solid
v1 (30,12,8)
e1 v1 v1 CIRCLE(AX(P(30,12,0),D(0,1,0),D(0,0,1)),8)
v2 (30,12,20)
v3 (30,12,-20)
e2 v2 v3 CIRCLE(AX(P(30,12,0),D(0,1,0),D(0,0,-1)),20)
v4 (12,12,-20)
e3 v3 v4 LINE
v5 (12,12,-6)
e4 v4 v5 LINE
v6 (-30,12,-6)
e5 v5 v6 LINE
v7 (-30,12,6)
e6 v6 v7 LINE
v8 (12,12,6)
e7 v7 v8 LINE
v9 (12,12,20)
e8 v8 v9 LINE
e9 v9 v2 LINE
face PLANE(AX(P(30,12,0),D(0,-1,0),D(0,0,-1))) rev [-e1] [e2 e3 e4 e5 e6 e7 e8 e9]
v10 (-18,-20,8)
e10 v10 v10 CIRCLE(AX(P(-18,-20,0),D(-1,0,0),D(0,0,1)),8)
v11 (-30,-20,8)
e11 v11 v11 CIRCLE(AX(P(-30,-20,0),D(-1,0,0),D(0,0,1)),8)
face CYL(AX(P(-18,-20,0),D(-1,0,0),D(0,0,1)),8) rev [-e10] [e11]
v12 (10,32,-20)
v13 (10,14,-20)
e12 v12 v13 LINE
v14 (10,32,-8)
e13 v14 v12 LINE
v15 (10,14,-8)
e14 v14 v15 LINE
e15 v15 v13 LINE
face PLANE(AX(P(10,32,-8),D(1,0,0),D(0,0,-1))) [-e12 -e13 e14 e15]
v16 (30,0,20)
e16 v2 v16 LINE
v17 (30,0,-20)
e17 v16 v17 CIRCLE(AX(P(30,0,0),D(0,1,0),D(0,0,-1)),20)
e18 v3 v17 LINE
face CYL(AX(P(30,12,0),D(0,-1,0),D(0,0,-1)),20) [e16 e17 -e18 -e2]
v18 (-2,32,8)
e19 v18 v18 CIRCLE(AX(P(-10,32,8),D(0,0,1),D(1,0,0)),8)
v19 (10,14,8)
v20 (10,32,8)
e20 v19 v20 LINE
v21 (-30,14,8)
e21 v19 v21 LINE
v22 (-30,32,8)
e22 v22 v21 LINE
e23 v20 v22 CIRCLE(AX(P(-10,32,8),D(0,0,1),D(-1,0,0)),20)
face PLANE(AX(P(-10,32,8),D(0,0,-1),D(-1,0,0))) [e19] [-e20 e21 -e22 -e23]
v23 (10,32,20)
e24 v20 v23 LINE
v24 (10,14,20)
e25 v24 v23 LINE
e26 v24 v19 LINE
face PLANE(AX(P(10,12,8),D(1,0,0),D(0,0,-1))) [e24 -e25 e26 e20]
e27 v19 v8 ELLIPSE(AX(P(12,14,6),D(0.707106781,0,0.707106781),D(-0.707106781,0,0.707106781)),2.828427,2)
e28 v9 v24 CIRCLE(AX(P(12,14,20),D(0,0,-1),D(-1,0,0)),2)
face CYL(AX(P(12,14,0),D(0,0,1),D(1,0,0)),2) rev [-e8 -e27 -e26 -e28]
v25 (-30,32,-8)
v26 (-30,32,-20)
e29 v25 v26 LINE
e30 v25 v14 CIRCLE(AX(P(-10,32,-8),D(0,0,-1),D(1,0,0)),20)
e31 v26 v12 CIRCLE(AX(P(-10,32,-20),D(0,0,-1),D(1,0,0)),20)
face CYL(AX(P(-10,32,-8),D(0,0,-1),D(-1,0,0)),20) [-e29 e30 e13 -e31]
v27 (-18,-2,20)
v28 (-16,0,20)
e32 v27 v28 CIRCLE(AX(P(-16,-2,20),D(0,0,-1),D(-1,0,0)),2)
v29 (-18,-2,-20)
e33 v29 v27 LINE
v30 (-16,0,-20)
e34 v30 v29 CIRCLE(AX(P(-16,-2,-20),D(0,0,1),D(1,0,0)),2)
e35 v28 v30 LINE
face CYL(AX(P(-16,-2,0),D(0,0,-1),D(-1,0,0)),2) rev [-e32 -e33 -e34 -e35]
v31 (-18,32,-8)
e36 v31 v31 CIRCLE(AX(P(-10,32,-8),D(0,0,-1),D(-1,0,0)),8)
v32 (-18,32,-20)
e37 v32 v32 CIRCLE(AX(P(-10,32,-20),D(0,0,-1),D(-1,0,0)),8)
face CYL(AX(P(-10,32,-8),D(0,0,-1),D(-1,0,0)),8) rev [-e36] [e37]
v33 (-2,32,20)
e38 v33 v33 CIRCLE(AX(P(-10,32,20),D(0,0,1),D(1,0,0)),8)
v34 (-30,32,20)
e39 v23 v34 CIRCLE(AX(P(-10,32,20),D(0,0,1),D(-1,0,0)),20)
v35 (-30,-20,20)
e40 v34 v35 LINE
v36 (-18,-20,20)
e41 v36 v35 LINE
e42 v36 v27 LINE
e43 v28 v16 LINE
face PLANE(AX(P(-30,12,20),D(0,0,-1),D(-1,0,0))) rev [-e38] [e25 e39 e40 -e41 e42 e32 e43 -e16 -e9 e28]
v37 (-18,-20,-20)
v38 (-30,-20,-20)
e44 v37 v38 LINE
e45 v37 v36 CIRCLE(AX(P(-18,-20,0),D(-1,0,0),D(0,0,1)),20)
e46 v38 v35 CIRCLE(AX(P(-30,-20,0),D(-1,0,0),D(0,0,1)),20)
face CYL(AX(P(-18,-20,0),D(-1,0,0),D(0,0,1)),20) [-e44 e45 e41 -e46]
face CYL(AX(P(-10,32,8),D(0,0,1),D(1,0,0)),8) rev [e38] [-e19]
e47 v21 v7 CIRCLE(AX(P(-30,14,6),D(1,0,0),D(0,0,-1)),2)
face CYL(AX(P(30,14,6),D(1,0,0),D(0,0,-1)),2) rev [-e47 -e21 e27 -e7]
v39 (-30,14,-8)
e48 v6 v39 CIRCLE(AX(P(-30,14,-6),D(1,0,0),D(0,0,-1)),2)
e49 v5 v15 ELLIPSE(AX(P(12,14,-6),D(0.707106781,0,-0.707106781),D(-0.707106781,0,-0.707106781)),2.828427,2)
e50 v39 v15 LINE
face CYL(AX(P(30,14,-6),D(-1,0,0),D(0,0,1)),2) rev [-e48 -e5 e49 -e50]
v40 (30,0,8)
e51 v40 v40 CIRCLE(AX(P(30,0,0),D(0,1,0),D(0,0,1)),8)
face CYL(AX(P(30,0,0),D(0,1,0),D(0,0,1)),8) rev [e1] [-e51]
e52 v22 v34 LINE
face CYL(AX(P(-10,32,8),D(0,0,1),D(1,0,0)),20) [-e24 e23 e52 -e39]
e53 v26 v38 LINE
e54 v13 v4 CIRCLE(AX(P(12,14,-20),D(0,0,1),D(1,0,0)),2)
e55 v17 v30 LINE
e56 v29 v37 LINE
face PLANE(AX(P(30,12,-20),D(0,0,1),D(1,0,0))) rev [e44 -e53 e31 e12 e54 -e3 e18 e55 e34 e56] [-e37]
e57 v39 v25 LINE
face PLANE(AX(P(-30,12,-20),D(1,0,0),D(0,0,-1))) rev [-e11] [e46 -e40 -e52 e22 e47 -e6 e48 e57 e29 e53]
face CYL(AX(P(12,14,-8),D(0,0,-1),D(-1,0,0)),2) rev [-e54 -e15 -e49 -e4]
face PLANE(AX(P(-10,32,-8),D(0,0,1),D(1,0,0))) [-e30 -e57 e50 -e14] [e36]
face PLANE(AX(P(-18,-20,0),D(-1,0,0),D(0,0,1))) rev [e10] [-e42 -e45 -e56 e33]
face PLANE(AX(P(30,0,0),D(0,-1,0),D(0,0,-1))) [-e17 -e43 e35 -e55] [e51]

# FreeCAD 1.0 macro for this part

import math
import FreeCAD as App
import Part
import Sketcher
Q = App.Units.Quantity


def edges_at(feature, points):
    """Names of the edges that pass closest to the given points."""
    edges = feature.Shape.Edges
    near = lambda p: min(range(len(edges)), key=lambda i: edges[i].distToShape(Part.Vertex(*p))[0])
    return sorted({f"Edge{near(p) + 1}" for p in points})

doc = App.newDocument("Part")
body = doc.addObject("PartDesign::Body", "Body")

# Sketch on XZ plane
sketch1 = doc.addObject("Sketcher::SketchObject", "Sketch")
body.addObject(sketch1)
sketch1.AttachmentSupport = (doc.XZ_Plane, [""])
sketch1.MapMode = "FlatFace"
sketch1.addGeometry(Part.LineSegment(App.Vector(-30, -20, 0), App.Vector(-30, 20, 0)), False)
sketch1.addGeometry(Part.LineSegment(App.Vector(-30, 20, 0), App.Vector(30, 20, 0)), False)
sketch1.addGeometry(Part.ArcOfCircle(Part.Circle(App.Vector(30, 0, 0), App.Vector(0, 0, 1), 20), math.radians(-90), math.radians(90)), False)
sketch1.addGeometry(Part.LineSegment(App.Vector(30, -20, 0), App.Vector(-30, -20, 0)), False)
sketch1.addConstraint(Sketcher.Constraint("Coincident", 0, 2, 1, 1))
sketch1.addConstraint(Sketcher.Constraint("Tangent", 1, 2, 2, 2))
sketch1.addConstraint(Sketcher.Constraint("Tangent", 2, 1, 3, 1))
sketch1.addConstraint(Sketcher.Constraint("Coincident", 3, 2, 0, 1))
sketch1.addConstraint(Sketcher.Constraint("Vertical", 0))
sketch1.addConstraint(Sketcher.Constraint("Horizontal", 1))
sketch1.addConstraint(Sketcher.Constraint("Horizontal", 3))
sketch1.addConstraint(Sketcher.Constraint("Symmetric", 0, 2, 2, 1, -1, 1))
sketch1.addConstraint(Sketcher.Constraint("Radius", 2, Q("20 mm")))
sketch1.addConstraint(Sketcher.Constraint("DistanceX", 1, 1, 1, 2, Q("60 mm")))
pad1 = doc.addObject("PartDesign::Pad", "Pad")
body.addObject(pad1)
pad1.Profile = sketch1
pad1.Length = 12
pad1.Reversed = True

# Sketch on XZ plane
sketch2 = doc.addObject("Sketcher::SketchObject", "Sketch001")
body.addObject(sketch2)
sketch2.AttachmentSupport = (doc.XZ_Plane, [""])
sketch2.MapMode = "FlatFace"
sketch2.AttachmentOffset = App.Placement(App.Vector(0, 0, -12), App.Rotation())
sketch2.addGeometry(Part.Circle(App.Vector(30, 0, 0), App.Vector(0, 0, 1), 8), False)
sketch2.addConstraint(Sketcher.Constraint("PointOnObject", 0, 3, -1))
sketch2.addConstraint(Sketcher.Constraint("Diameter", 0, Q("16 mm")))
sketch2.addConstraint(Sketcher.Constraint("DistanceX", -1, 1, 0, 3, Q("30 mm")))
pocket1 = doc.addObject("PartDesign::Pocket", "Pocket")
body.addObject(pocket1)
pocket1.Profile = sketch2
pocket1.Type = "ThroughAll"
pocket1.Reversed = True

# Sketch on XY plane
sketch3 = doc.addObject("Sketcher::SketchObject", "Sketch002")
body.addObject(sketch3)
sketch3.AttachmentSupport = (doc.XY_Plane, [""])
sketch3.MapMode = "FlatFace"
sketch3.AttachmentOffset = App.Placement(App.Vector(0, 0, 20), App.Rotation())
sketch3.addGeometry(Part.LineSegment(App.Vector(-30, 32, 0), App.Vector(-30, 12, 0)), False)
sketch3.addGeometry(Part.LineSegment(App.Vector(-30, 12, 0), App.Vector(10, 12, 0)), False)
sketch3.addGeometry(Part.LineSegment(App.Vector(10, 12, 0), App.Vector(10, 32, 0)), False)
sketch3.addGeometry(Part.ArcOfCircle(Part.Circle(App.Vector(-10, 32, 0), App.Vector(0, 0, 1), 20), math.radians(0), math.radians(180)), False)
sketch3.addGeometry(Part.Circle(App.Vector(-10, 32, 0), App.Vector(0, 0, 1), 8), False)
sketch3.addConstraint(Sketcher.Constraint("Coincident", 0, 2, 1, 1))
sketch3.addConstraint(Sketcher.Constraint("Coincident", 1, 2, 2, 1))
sketch3.addConstraint(Sketcher.Constraint("Tangent", 2, 2, 3, 1))
sketch3.addConstraint(Sketcher.Constraint("Tangent", 3, 2, 0, 1))
sketch3.addConstraint(Sketcher.Constraint("Vertical", 0))
sketch3.addConstraint(Sketcher.Constraint("Horizontal", 1))
sketch3.addConstraint(Sketcher.Constraint("Vertical", 2))
sketch3.addConstraint(Sketcher.Constraint("Coincident", 4, 3, 3, 3))
sketch3.addConstraint(Sketcher.Constraint("Diameter", 4, Q("16 mm")))
sketch3.addConstraint(Sketcher.Constraint("Radius", 3, Q("20 mm")))
sketch3.addConstraint(Sketcher.Constraint("DistanceY", 0, 2, 0, 1, Q("20 mm")))
sketch3.addConstraint(Sketcher.Constraint("DistanceX", 3, 3, -1, 1, Q("10 mm")))
sketch3.addConstraint(Sketcher.Constraint("DistanceY", -1, 1, 3, 3, Q("32 mm")))
pad2 = doc.addObject("PartDesign::Pad", "Pad001")
body.addObject(pad2)
pad2.Profile = sketch3
pad2.Length = 12
pad2.Reversed = True

# Sketch on XY plane
sketch4 = doc.addObject("Sketcher::SketchObject", "Sketch003")
body.addObject(sketch4)
sketch4.AttachmentSupport = (doc.XY_Plane, [""])
sketch4.MapMode = "FlatFace"
sketch4.AttachmentOffset = App.Placement(App.Vector(0, 0, -8), App.Rotation())
sketch4.addGeometry(Part.LineSegment(App.Vector(10, 32, 0), App.Vector(10, 12, 0)), False)
sketch4.addGeometry(Part.LineSegment(App.Vector(10, 12, 0), App.Vector(-30, 12, 0)), False)
sketch4.addGeometry(Part.LineSegment(App.Vector(-30, 12, 0), App.Vector(-30, 32, 0)), False)
sketch4.addGeometry(Part.ArcOfCircle(Part.Circle(App.Vector(-10, 32, 0), App.Vector(0, 0, 1), 20), math.radians(0), math.radians(180)), False)
sketch4.addGeometry(Part.Circle(App.Vector(-10, 32, 0), App.Vector(0, 0, 1), 8), False)
sketch4.addConstraint(Sketcher.Constraint("Coincident", 0, 2, 1, 1))
sketch4.addConstraint(Sketcher.Constraint("Coincident", 1, 2, 2, 1))
sketch4.addConstraint(Sketcher.Constraint("Tangent", 2, 2, 3, 2))
sketch4.addConstraint(Sketcher.Constraint("Tangent", 3, 1, 0, 1))
sketch4.addConstraint(Sketcher.Constraint("Vertical", 0))
sketch4.addConstraint(Sketcher.Constraint("Horizontal", 1))
sketch4.addConstraint(Sketcher.Constraint("Vertical", 2))
sketch4.addConstraint(Sketcher.Constraint("Coincident", 4, 3, 3, 3))
sketch4.addConstraint(Sketcher.Constraint("Diameter", 4, Q("16 mm")))
sketch4.addConstraint(Sketcher.Constraint("Radius", 3, Q("20 mm")))
sketch4.addConstraint(Sketcher.Constraint("DistanceY", 0, 2, 0, 1, Q("20 mm")))
sketch4.addConstraint(Sketcher.Constraint("DistanceX", 3, 3, -1, 1, Q("10 mm")))
sketch4.addConstraint(Sketcher.Constraint("DistanceY", -1, 1, 3, 3, Q("32 mm")))
pad3 = doc.addObject("PartDesign::Pad", "Pad002")
body.addObject(pad3)
pad3.Profile = sketch4
pad3.Length = 12
pad3.Reversed = True

# Sketch on YZ plane
sketch5 = doc.addObject("Sketcher::SketchObject", "Sketch004")
body.addObject(sketch5)
sketch5.AttachmentSupport = (doc.YZ_Plane, [""])
sketch5.MapMode = "FlatFace"
sketch5.AttachmentOffset = App.Placement(App.Vector(0, 0, -30), App.Rotation())
sketch5.addGeometry(Part.LineSegment(App.Vector(0, -20, 0), App.Vector(-20, -20, 0)), False)
sketch5.addGeometry(Part.ArcOfCircle(Part.Circle(App.Vector(-20, 0, 0), App.Vector(0, 0, 1), 20), math.radians(90), math.radians(270)), False)
sketch5.addGeometry(Part.LineSegment(App.Vector(-20, 20, 0), App.Vector(0, 20, 0)), False)
sketch5.addGeometry(Part.LineSegment(App.Vector(0, 20, 0), App.Vector(0, -20, 0)), False)
sketch5.addGeometry(Part.Circle(App.Vector(-20, 0, 0), App.Vector(0, 0, 1), 8), False)
sketch5.addConstraint(Sketcher.Constraint("Tangent", 0, 2, 1, 2))
sketch5.addConstraint(Sketcher.Constraint("Tangent", 1, 1, 2, 1))
sketch5.addConstraint(Sketcher.Constraint("Coincident", 2, 2, 3, 1))
sketch5.addConstraint(Sketcher.Constraint("Coincident", 3, 2, 0, 1))
sketch5.addConstraint(Sketcher.Constraint("Horizontal", 0))
sketch5.addConstraint(Sketcher.Constraint("Horizontal", 2))
sketch5.addConstraint(Sketcher.Constraint("Vertical", 3))
sketch5.addConstraint(Sketcher.Constraint("Coincident", 4, 3, 1, 3))
sketch5.addConstraint(Sketcher.Constraint("Symmetric", 2, 2, 3, 2, -1, 1))
sketch5.addConstraint(Sketcher.Constraint("Diameter", 4, Q("16 mm")))
sketch5.addConstraint(Sketcher.Constraint("Radius", 1, Q("20 mm")))
sketch5.addConstraint(Sketcher.Constraint("DistanceX", 0, 2, 0, 1, Q("20 mm")))
pad4 = doc.addObject("PartDesign::Pad", "Pad003")
body.addObject(pad4)
pad4.Profile = sketch5
pad4.Length = 12
doc.recompute()

fillet = doc.addObject("PartDesign::Fillet", "Fillet")
body.addObject(fillet)
fillet.Base = (pad4, edges_at(pad4, [
    (-10, 12, 8),
    (10, 12, 14),
    (-10, 12, -8),
    (10, 12, -14),
    (-18, 0, 0),
]))
fillet.Radius = 2

doc.recompute()
